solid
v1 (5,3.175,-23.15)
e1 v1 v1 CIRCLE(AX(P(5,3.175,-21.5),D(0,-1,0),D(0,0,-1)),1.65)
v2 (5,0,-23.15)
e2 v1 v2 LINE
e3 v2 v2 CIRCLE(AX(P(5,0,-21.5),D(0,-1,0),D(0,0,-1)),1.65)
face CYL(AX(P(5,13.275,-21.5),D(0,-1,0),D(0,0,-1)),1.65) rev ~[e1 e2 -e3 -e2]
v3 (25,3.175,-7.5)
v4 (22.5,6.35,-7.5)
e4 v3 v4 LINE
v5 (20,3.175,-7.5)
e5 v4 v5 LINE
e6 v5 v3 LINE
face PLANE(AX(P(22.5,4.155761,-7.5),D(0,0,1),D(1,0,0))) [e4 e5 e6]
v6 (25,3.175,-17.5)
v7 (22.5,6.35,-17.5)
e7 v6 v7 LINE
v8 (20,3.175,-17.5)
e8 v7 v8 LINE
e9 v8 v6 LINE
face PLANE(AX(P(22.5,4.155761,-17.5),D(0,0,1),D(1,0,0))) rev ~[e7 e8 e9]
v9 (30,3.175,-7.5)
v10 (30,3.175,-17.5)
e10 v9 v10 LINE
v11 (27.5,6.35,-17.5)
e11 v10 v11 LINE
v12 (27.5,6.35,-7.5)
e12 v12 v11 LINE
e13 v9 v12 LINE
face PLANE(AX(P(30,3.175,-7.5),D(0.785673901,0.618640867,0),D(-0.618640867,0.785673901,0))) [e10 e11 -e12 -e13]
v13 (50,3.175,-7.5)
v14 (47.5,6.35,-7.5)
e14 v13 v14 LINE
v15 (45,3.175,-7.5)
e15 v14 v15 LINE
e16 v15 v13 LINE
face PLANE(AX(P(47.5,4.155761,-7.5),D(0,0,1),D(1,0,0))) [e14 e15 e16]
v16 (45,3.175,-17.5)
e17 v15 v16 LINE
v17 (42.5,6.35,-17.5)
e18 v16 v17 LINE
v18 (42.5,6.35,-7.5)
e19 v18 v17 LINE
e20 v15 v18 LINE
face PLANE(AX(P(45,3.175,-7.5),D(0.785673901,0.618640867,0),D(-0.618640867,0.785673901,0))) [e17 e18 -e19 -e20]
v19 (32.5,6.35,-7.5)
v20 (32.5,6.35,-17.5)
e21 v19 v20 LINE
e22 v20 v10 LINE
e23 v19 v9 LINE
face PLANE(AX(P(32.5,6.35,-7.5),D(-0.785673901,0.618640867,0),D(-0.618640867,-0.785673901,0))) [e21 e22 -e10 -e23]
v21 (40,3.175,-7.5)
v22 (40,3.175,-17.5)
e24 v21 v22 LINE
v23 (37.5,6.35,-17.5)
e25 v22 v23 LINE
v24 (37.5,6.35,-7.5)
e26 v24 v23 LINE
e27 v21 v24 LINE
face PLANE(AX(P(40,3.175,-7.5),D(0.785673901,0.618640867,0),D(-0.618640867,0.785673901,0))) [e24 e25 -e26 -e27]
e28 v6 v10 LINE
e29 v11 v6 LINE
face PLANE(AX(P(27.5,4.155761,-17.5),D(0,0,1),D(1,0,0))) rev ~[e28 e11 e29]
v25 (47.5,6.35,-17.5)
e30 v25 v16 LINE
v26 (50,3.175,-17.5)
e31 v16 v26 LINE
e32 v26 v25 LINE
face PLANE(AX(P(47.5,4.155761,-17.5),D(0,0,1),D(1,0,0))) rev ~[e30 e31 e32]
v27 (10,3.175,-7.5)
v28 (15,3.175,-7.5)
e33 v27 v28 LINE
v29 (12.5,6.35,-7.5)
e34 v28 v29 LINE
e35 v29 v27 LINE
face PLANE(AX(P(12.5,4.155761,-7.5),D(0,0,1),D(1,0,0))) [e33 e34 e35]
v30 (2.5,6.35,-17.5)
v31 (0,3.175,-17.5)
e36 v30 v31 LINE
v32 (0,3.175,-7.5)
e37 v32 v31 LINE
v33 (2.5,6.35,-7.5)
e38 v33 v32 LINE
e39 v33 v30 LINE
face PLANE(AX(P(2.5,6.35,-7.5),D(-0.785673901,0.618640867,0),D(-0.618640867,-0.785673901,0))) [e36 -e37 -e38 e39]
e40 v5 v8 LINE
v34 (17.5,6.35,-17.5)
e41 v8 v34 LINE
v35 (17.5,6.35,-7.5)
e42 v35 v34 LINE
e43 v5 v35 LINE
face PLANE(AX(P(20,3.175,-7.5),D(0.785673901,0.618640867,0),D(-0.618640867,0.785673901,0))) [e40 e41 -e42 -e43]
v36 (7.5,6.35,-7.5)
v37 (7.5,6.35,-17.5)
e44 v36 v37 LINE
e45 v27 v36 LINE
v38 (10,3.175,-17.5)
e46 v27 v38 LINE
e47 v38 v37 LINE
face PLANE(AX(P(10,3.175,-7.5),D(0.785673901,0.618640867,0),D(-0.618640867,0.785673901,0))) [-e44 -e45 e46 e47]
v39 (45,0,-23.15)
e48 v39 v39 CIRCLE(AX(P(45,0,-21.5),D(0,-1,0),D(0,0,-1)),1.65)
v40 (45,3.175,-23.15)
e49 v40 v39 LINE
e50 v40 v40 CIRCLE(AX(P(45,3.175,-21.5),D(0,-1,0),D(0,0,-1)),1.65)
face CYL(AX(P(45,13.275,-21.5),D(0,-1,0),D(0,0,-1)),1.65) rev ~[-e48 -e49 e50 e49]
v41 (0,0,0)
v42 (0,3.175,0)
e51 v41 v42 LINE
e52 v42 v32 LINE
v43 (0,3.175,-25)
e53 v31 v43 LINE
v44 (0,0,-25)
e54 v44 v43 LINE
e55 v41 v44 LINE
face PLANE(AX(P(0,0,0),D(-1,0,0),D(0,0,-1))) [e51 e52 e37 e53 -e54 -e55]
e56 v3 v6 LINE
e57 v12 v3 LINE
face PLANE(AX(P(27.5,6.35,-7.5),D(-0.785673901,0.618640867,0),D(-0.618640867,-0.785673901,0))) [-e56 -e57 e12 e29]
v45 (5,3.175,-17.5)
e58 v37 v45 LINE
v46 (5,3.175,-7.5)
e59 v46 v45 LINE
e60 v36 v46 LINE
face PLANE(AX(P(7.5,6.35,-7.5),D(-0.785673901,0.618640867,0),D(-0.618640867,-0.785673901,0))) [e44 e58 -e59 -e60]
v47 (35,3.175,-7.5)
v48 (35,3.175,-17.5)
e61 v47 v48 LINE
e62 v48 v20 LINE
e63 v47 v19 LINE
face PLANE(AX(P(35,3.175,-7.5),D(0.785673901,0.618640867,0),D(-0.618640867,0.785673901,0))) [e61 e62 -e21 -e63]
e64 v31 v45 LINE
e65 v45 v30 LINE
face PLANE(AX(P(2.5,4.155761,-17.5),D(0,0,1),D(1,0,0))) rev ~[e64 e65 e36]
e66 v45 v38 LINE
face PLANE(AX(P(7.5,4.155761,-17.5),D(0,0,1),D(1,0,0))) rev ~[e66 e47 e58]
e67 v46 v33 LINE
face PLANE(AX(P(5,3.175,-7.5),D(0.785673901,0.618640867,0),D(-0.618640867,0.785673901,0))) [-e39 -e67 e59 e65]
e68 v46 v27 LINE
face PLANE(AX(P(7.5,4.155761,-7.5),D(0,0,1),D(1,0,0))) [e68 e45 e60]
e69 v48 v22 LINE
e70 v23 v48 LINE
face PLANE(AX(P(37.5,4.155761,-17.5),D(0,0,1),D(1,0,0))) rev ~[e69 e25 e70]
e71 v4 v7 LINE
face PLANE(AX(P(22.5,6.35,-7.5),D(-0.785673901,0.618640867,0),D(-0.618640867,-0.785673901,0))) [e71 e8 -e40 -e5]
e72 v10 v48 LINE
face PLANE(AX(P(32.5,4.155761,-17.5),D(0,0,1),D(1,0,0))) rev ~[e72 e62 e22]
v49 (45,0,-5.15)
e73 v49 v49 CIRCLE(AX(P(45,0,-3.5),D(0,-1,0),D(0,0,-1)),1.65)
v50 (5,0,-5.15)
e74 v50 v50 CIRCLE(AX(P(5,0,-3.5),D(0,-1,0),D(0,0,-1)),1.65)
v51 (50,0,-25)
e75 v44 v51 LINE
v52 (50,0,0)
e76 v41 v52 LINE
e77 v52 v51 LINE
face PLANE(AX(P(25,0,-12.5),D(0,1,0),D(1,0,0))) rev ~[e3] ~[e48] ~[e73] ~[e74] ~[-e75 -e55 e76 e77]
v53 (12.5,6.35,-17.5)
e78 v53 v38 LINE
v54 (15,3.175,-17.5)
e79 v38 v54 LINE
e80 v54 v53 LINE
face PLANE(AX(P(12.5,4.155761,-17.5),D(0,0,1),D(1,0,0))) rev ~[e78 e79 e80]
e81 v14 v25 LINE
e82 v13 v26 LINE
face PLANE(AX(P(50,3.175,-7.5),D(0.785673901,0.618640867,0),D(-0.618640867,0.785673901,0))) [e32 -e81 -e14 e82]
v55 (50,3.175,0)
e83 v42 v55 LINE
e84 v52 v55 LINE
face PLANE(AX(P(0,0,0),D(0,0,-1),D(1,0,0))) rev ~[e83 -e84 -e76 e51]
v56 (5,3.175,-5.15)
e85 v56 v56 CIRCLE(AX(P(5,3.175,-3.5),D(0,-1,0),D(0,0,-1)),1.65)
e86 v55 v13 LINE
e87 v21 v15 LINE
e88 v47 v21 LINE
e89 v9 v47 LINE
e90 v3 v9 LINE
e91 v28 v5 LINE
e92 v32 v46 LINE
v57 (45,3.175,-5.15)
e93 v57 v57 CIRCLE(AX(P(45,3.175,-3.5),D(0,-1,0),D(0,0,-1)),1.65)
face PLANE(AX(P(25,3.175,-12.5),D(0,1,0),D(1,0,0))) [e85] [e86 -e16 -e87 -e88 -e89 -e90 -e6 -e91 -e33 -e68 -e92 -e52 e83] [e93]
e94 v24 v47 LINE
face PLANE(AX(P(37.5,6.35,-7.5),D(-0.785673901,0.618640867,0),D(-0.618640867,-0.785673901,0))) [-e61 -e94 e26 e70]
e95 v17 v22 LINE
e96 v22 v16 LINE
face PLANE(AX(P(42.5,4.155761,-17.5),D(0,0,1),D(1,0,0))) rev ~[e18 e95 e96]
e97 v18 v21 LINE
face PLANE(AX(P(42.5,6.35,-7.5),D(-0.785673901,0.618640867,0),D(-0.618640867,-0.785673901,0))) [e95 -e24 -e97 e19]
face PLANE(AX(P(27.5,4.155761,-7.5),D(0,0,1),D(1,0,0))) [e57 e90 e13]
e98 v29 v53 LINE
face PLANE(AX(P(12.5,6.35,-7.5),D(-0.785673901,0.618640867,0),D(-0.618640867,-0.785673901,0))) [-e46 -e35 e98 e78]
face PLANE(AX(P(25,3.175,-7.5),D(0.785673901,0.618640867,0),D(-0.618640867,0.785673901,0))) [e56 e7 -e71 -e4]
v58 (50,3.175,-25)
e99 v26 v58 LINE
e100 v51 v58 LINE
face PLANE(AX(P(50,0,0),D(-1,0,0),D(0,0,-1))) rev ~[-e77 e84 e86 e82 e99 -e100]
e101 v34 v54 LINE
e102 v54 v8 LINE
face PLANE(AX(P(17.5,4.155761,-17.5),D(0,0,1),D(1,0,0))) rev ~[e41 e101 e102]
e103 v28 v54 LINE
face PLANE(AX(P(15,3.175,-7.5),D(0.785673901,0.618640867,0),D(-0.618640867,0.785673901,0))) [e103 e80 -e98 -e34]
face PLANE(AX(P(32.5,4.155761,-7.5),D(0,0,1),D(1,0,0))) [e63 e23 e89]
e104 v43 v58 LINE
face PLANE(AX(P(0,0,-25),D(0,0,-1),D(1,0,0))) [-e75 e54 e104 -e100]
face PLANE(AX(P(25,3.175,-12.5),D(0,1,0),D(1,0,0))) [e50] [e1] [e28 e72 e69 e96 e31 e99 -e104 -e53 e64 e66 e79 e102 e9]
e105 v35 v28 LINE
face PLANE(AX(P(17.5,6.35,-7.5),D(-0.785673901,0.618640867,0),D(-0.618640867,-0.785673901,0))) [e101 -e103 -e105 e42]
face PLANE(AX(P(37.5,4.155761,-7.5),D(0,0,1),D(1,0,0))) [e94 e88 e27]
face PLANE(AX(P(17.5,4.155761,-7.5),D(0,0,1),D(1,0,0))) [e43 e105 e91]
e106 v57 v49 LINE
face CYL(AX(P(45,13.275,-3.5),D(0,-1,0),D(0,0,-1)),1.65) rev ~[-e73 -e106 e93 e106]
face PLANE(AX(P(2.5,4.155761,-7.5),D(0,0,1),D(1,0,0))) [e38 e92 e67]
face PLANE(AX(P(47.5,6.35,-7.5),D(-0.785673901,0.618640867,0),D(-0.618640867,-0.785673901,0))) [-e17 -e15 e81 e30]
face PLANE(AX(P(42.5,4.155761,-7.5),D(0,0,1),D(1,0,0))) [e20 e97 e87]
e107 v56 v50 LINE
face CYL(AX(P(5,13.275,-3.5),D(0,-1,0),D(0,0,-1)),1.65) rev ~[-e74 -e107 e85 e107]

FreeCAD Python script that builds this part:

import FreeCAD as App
import Part
import Sketcher

V = App.Vector

doc = App.newDocument("Part")
body = doc.addObject("PartDesign::Body", "Body")

sketch1 = body.newObject("Sketcher::SketchObject", "Sketch")
sketch1.AttachmentSupport = (doc.getObject("XZ_Plane"), [""])
sketch1.MapMode = "FlatFace"
sketch1.addGeometry(Part.LineSegment(V(0, -25, 0), V(0, 0, 0)), False)
sketch1.addGeometry(Part.LineSegment(V(0, 0, 0), V(50, 0, 0)), False)
sketch1.addGeometry(Part.LineSegment(V(50, 0, 0), V(50, -25, 0)), False)
sketch1.addGeometry(Part.LineSegment(V(50, -25, 0), V(0, -25, 0)), False)
sketch1.addConstraint(Sketcher.Constraint("Coincident", 0, 2, 1, 1))
sketch1.addConstraint(Sketcher.Constraint("Coincident", 1, 2, 2, 1))
sketch1.addConstraint(Sketcher.Constraint("Coincident", 2, 2, 3, 1))
sketch1.addConstraint(Sketcher.Constraint("Coincident", 3, 2, 0, 1))
sketch1.addConstraint(Sketcher.Constraint("Vertical", 0))
sketch1.addConstraint(Sketcher.Constraint("Horizontal", 1))
sketch1.addConstraint(Sketcher.Constraint("Vertical", 2))
sketch1.addConstraint(Sketcher.Constraint("Horizontal", 3))
sketch1.addConstraint(Sketcher.Constraint("Coincident", 0, 2, -1, 1))
sketch1.addConstraint(Sketcher.Constraint("DistanceX", 1, 1, 1, 2, 50.0))
sketch1.addConstraint(Sketcher.Constraint("DistanceY", 0, 1, 0, 2, 25.0))
pad1 = body.newObject("PartDesign::Pad", "Pad")
pad1.Profile = sketch1
pad1.Length = 3.175
pad1.Reversed = True

sketch2 = body.newObject("Sketcher::SketchObject", "Sketch001")
sketch2.AttachmentSupport = (doc.getObject("XZ_Plane"), [""])
sketch2.MapMode = "FlatFace"
sketch2.AttachmentOffset = App.Placement(V(0, 0, -3.175), App.Rotation())
sketch2.addGeometry(Part.Circle(V(5, -21.5, 0), V(0, 0, 1), 1.65), False)
sketch2.addGeometry(Part.Circle(V(45, -21.5, 0), V(0, 0, 1), 1.65), False)
sketch2.addGeometry(Part.Circle(V(5, -3.5, 0), V(0, 0, 1), 1.65), False)
sketch2.addGeometry(Part.Circle(V(45, -3.5, 0), V(0, 0, 1), 1.65), False)
sketch2.addConstraint(Sketcher.Constraint("Equal", 0, 1))
sketch2.addConstraint(Sketcher.Constraint("Equal", 1, 2))
sketch2.addConstraint(Sketcher.Constraint("Equal", 2, 3))
sketch2.addConstraint(Sketcher.Constraint("Horizontal", 0, 3, 1, 3))
sketch2.addConstraint(Sketcher.Constraint("Horizontal", 2, 3, 3, 3))
sketch2.addConstraint(Sketcher.Constraint("Vertical", 0, 3, 2, 3))
sketch2.addConstraint(Sketcher.Constraint("Vertical", 1, 3, 3, 3))
sketch2.addConstraint(Sketcher.Constraint("Diameter", 0, 3.3))
sketch2.addConstraint(Sketcher.Constraint("DistanceX", -1, 1, 0, 3, 5.0))
sketch2.addConstraint(Sketcher.Constraint("DistanceX", -1, 1, 1, 3, 45.0))
sketch2.addConstraint(Sketcher.Constraint("DistanceY", 0, 3, 2, 3, 18.0))
sketch2.addConstraint(Sketcher.Constraint("DistanceY", 0, 3, -1, 1, 21.5))
doc.recompute()
hole = body.newObject("PartDesign::Hole", "Hole")
hole.Profile = sketch2
hole.ThreadType = "None"
hole.Diameter = 3.3
hole.DepthType = "Dimension"
hole.Depth = 10.1
hole.DrillPoint = "Angled"
hole.DrillPointAngle = 118
hole.Reversed = True

sketch3 = body.newObject("Sketcher::SketchObject", "Sketch002")
sketch3.AttachmentSupport = (doc.getObject("XY_Plane"), [""])
sketch3.MapMode = "FlatFace"
sketch3.AttachmentOffset = App.Placement(V(0, 0, -7.5), App.Rotation())
sketch3.addGeometry(Part.LineSegment(V(0, 3.175, 0), V(5, 3.175, 0)), False)
sketch3.addGeometry(Part.LineSegment(V(5, 3.175, 0), V(2.5, 6.35, 0)), False)
sketch3.addGeometry(Part.LineSegment(V(2.5, 6.35, 0), V(0, 3.175, 0)), False)
sketch3.addGeometry(Part.LineSegment(V(5, 3.175, 0), V(10, 3.175, 0)), False)
sketch3.addGeometry(Part.LineSegment(V(10, 3.175, 0), V(7.5, 6.35, 0)), False)
sketch3.addGeometry(Part.LineSegment(V(7.5, 6.35, 0), V(5, 3.175, 0)), False)
sketch3.addGeometry(Part.LineSegment(V(10, 3.175, 0), V(15, 3.175, 0)), False)
sketch3.addGeometry(Part.LineSegment(V(15, 3.175, 0), V(12.5, 6.35, 0)), False)
sketch3.addGeometry(Part.LineSegment(V(12.5, 6.35, 0), V(10, 3.175, 0)), False)
sketch3.addGeometry(Part.LineSegment(V(15, 3.175, 0), V(20, 3.175, 0)), False)
sketch3.addGeometry(Part.LineSegment(V(20, 3.175, 0), V(17.5, 6.35, 0)), False)
sketch3.addGeometry(Part.LineSegment(V(17.5, 6.35, 0), V(15, 3.175, 0)), False)
sketch3.addGeometry(Part.LineSegment(V(20, 3.175, 0), V(25, 3.175, 0)), False)
sketch3.addGeometry(Part.LineSegment(V(25, 3.175, 0), V(22.5, 6.35, 0)), False)
sketch3.addGeometry(Part.LineSegment(V(22.5, 6.35, 0), V(20, 3.175, 0)), False)
sketch3.addGeometry(Part.LineSegment(V(27.5, 6.35, 0), V(25, 3.175, 0)), False)
sketch3.addGeometry(Part.LineSegment(V(25, 3.175, 0), V(30, 3.175, 0)), False)
sketch3.addGeometry(Part.LineSegment(V(30, 3.175, 0), V(27.5, 6.35, 0)), False)
sketch3.addGeometry(Part.LineSegment(V(32.5, 6.35, 0), V(30, 3.175, 0)), False)
sketch3.addGeometry(Part.LineSegment(V(30, 3.175, 0), V(35, 3.175, 0)), False)
sketch3.addGeometry(Part.LineSegment(V(35, 3.175, 0), V(32.5, 6.35, 0)), False)
sketch3.addGeometry(Part.LineSegment(V(37.5, 6.35, 0), V(35, 3.175, 0)), False)
sketch3.addGeometry(Part.LineSegment(V(35, 3.175, 0), V(40, 3.175, 0)), False)
sketch3.addGeometry(Part.LineSegment(V(40, 3.175, 0), V(37.5, 6.35, 0)), False)
sketch3.addGeometry(Part.LineSegment(V(42.5, 6.35, 0), V(40, 3.175, 0)), False)
sketch3.addGeometry(Part.LineSegment(V(40, 3.175, 0), V(45, 3.175, 0)), False)
sketch3.addGeometry(Part.LineSegment(V(45, 3.175, 0), V(42.5, 6.35, 0)), False)
sketch3.addGeometry(Part.LineSegment(V(47.5, 6.35, 0), V(45, 3.175, 0)), False)
sketch3.addGeometry(Part.LineSegment(V(45, 3.175, 0), V(50, 3.175, 0)), False)
sketch3.addGeometry(Part.LineSegment(V(50, 3.175, 0), V(47.5, 6.35, 0)), False)
sketch3.addConstraint(Sketcher.Constraint("Coincident", 0, 2, 1, 1))
sketch3.addConstraint(Sketcher.Constraint("Coincident", 1, 2, 2, 1))
sketch3.addConstraint(Sketcher.Constraint("Coincident", 2, 2, 0, 1))
sketch3.addConstraint(Sketcher.Constraint("Coincident", 3, 2, 4, 1))
sketch3.addConstraint(Sketcher.Constraint("Coincident", 4, 2, 5, 1))
sketch3.addConstraint(Sketcher.Constraint("Coincident", 5, 2, 3, 1))
sketch3.addConstraint(Sketcher.Constraint("Coincident", 6, 2, 7, 1))
sketch3.addConstraint(Sketcher.Constraint("Coincident", 7, 2, 8, 1))
sketch3.addConstraint(Sketcher.Constraint("Coincident", 8, 2, 6, 1))
sketch3.addConstraint(Sketcher.Constraint("Coincident", 9, 2, 10, 1))
sketch3.addConstraint(Sketcher.Constraint("Coincident", 10, 2, 11, 1))
sketch3.addConstraint(Sketcher.Constraint("Coincident", 11, 2, 9, 1))
sketch3.addConstraint(Sketcher.Constraint("Coincident", 12, 2, 13, 1))
sketch3.addConstraint(Sketcher.Constraint("Coincident", 13, 2, 14, 1))
sketch3.addConstraint(Sketcher.Constraint("Coincident", 14, 2, 12, 1))
sketch3.addConstraint(Sketcher.Constraint("Coincident", 15, 2, 16, 1))
sketch3.addConstraint(Sketcher.Constraint("Coincident", 16, 2, 17, 1))
sketch3.addConstraint(Sketcher.Constraint("Coincident", 17, 2, 15, 1))
sketch3.addConstraint(Sketcher.Constraint("Coincident", 18, 2, 19, 1))
sketch3.addConstraint(Sketcher.Constraint("Coincident", 19, 2, 20, 1))
sketch3.addConstraint(Sketcher.Constraint("Coincident", 20, 2, 18, 1))
sketch3.addConstraint(Sketcher.Constraint("Coincident", 21, 2, 22, 1))
sketch3.addConstraint(Sketcher.Constraint("Coincident", 22, 2, 23, 1))
sketch3.addConstraint(Sketcher.Constraint("Coincident", 23, 2, 21, 1))
sketch3.addConstraint(Sketcher.Constraint("Coincident", 24, 2, 25, 1))
sketch3.addConstraint(Sketcher.Constraint("Coincident", 25, 2, 26, 1))
sketch3.addConstraint(Sketcher.Constraint("Coincident", 26, 2, 24, 1))
sketch3.addConstraint(Sketcher.Constraint("Coincident", 27, 2, 28, 1))
sketch3.addConstraint(Sketcher.Constraint("Coincident", 28, 2, 29, 1))
sketch3.addConstraint(Sketcher.Constraint("Coincident", 29, 2, 27, 1))
sketch3.addConstraint(Sketcher.Constraint("Horizontal", 0))
sketch3.addConstraint(Sketcher.Constraint("Horizontal", 3))
sketch3.addConstraint(Sketcher.Constraint("Horizontal", 6))
sketch3.addConstraint(Sketcher.Constraint("Horizontal", 9))
sketch3.addConstraint(Sketcher.Constraint("Horizontal", 12))
sketch3.addConstraint(Sketcher.Constraint("Horizontal", 16))
sketch3.addConstraint(Sketcher.Constraint("Horizontal", 19))
sketch3.addConstraint(Sketcher.Constraint("Horizontal", 22))
sketch3.addConstraint(Sketcher.Constraint("Horizontal", 25))
sketch3.addConstraint(Sketcher.Constraint("Horizontal", 28))
sketch3.addConstraint(Sketcher.Constraint("Coincident", 5, 2, 0, 2))
sketch3.addConstraint(Sketcher.Constraint("Coincident", 8, 2, 3, 2))
sketch3.addConstraint(Sketcher.Constraint("Coincident", 11, 2, 6, 2))
sketch3.addConstraint(Sketcher.Constraint("Coincident", 14, 2, 9, 2))
sketch3.addConstraint(Sketcher.Constraint("Coincident", 15, 2, 12, 2))
sketch3.addConstraint(Sketcher.Constraint("Coincident", 18, 2, 16, 2))
sketch3.addConstraint(Sketcher.Constraint("Coincident", 21, 2, 19, 2))
sketch3.addConstraint(Sketcher.Constraint("Coincident", 24, 2, 22, 2))
sketch3.addConstraint(Sketcher.Constraint("Coincident", 27, 2, 25, 2))
sketch3.addConstraint(Sketcher.Constraint("PointOnObject", 2, 2, -2))
sketch3.addConstraint(Sketcher.Constraint("Parallel", 1, 4))
sketch3.addConstraint(Sketcher.Constraint("Parallel", 2, 5))
sketch3.addConstraint(Sketcher.Constraint("Parallel", 4, 7))
sketch3.addConstraint(Sketcher.Constraint("Parallel", 5, 8))
sketch3.addConstraint(Sketcher.Constraint("Parallel", 7, 10))
sketch3.addConstraint(Sketcher.Constraint("Parallel", 8, 11))
sketch3.addConstraint(Sketcher.Constraint("Parallel", 10, 13))
sketch3.addConstraint(Sketcher.Constraint("Parallel", 11, 14))
sketch3.addConstraint(Sketcher.Constraint("Parallel", 14, 15))
sketch3.addConstraint(Sketcher.Constraint("Parallel", 13, 17))
sketch3.addConstraint(Sketcher.Constraint("Parallel", 15, 18))
sketch3.addConstraint(Sketcher.Constraint("Parallel", 17, 20))
sketch3.addConstraint(Sketcher.Constraint("Parallel", 18, 21))
sketch3.addConstraint(Sketcher.Constraint("Parallel", 20, 23))
sketch3.addConstraint(Sketcher.Constraint("Parallel", 21, 24))
sketch3.addConstraint(Sketcher.Constraint("Parallel", 23, 26))
sketch3.addConstraint(Sketcher.Constraint("Parallel", 24, 27))
sketch3.addConstraint(Sketcher.Constraint("Parallel", 26, 29))
sketch3.addConstraint(Sketcher.Constraint("Horizontal", 1, 2, 4, 2))
sketch3.addConstraint(Sketcher.Constraint("Horizontal", 4, 2, 7, 2))
sketch3.addConstraint(Sketcher.Constraint("Horizontal", 7, 2, 10, 2))
sketch3.addConstraint(Sketcher.Constraint("Horizontal", 10, 2, 13, 2))
sketch3.addConstraint(Sketcher.Constraint("Horizontal", 13, 2, 17, 2))
sketch3.addConstraint(Sketcher.Constraint("Horizontal", 17, 2, 20, 2))
sketch3.addConstraint(Sketcher.Constraint("Horizontal", 20, 2, 23, 2))
sketch3.addConstraint(Sketcher.Constraint("Horizontal", 23, 2, 26, 2))
sketch3.addConstraint(Sketcher.Constraint("Horizontal", 26, 2, 29, 2))
sketch3.addConstraint(Sketcher.Constraint("Equal", 1, 2))
sketch3.addConstraint(Sketcher.Constraint("DistanceX", 0, 1, 0, 2, 5.0))
sketch3.addConstraint(Sketcher.Constraint("DistanceY", -1, 1, 1, 2, 6.35))
sketch3.addConstraint(Sketcher.Constraint("DistanceY", -1, 1, 0, 2, 3.175))
pad2 = body.newObject("PartDesign::Pad", "Pad001")
pad2.Profile = sketch3
pad2.Length = 10
pad2.Reversed = True

doc.recompute()
